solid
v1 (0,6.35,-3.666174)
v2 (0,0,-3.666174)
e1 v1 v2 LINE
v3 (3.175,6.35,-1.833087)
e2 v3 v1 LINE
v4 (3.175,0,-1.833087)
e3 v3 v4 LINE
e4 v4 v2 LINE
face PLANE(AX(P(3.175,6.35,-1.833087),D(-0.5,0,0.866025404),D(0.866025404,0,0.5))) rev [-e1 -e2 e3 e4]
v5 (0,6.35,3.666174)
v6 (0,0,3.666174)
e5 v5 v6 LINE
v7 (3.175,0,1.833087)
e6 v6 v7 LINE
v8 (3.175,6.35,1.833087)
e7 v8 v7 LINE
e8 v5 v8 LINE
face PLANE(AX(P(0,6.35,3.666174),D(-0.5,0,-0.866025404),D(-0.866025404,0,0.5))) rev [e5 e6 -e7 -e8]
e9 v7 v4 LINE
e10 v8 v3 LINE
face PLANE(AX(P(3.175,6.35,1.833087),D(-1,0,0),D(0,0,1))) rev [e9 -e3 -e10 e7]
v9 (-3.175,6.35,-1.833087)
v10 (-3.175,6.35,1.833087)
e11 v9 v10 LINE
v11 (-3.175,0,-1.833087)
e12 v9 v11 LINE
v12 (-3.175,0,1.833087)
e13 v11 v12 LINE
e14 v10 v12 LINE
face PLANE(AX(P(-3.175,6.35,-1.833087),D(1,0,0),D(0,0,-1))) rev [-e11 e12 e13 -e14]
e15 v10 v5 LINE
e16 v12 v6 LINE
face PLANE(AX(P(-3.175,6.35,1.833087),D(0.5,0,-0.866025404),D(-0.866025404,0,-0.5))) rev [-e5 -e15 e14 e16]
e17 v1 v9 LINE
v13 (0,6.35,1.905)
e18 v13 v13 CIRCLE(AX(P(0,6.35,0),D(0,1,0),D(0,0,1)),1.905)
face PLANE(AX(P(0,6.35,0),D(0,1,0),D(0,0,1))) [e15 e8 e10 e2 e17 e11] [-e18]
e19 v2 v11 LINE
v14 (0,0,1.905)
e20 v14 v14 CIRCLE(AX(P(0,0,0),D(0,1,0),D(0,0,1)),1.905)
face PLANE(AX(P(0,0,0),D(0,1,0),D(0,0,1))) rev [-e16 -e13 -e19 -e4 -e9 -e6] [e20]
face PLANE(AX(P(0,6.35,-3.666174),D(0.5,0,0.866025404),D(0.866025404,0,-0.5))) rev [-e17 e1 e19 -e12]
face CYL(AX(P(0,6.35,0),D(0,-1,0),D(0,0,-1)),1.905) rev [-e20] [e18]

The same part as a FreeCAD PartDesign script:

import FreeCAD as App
import Part
import Sketcher
Q = App.Units.Quantity


def add_polygon(sketch, points):
    """Adds a closed chain of lines whose ends are joined by coincident constraints."""
    first, n = sketch.GeometryCount, len(points)
    for a, b in zip(points, points[1:] + points[:1]):
        sketch.addGeometry(Part.LineSegment(App.Vector(*a, 0), App.Vector(*b, 0)), False)
    for i in range(n):
        sketch.addConstraint(Sketcher.Constraint("Coincident", first + i, 2, first + (i + 1) % n, 1))

doc = App.newDocument("Part")
params = doc.addObject("Spreadsheet::Sheet", "Params")
for row, (alias, value) in enumerate([
    ("sketch1_diameter", "0.15 in"),
    ("pad1_length", "0.25 in"),
], start=1):
    params.set(f"A{row}", alias)
    params.set(f"B{row}", "=" + value)
    params.setAlias(f"B{row}", alias)

body = doc.addObject("PartDesign::Body", "Body")

sketch1 = doc.addObject("Sketcher::SketchObject", "Sketch")
body.addObject(sketch1)
sketch1.AttachmentSupport = (doc.XZ_Plane, [""])
sketch1.MapMode = "FlatFace"
add_polygon(sketch1, [(0, 3.7), (3.2, 1.8), (3.2, -1.8), (0, -3.7), (-3.2, -1.8), (-3.2, 1.8)])
sketch1.addGeometry(Part.Circle(App.Vector(0, 0, 0), App.Vector(0, 0, 1), 1.9), False)
sketch1.addConstraint([
    Sketcher.Constraint("Vertical", 1),
    Sketcher.Constraint("Vertical", 4),
    Sketcher.Constraint("Coincident", 6, 3, -1, 1),
    Sketcher.Constraint("Symmetric", 0, 2, 3, 2, -1, 1),
    Sketcher.Constraint("Symmetric", 2, 2, 5, 2, -1, 1),
    Sketcher.Constraint("PointOnObject", 2, 2, -2),
    Sketcher.Constraint("Parallel", 2, 5),
    Sketcher.Constraint("Horizontal", 1, 2, 3, 2),
    Sketcher.Constraint("Diameter", 6, Q("0.15 in")),
    Sketcher.Constraint("Angle", 0, Q("-30 deg")),
    Sketcher.Constraint("DistanceX", 3, 2, 1, 2, Q("0.25 in")),
    Sketcher.Constraint("DistanceY", 1, 2, 1, 1, Q("3.666174 mm")),
])
sketch1.setExpression("Constraints[14]", "Params.sketch1_diameter")
pad1 = doc.addObject("PartDesign::Pad", "Pad")
body.addObject(pad1)
pad1.Profile = sketch1
pad1.setExpression("Length", "Params.pad1_length")
pad1.Reversed = True

doc.recompute()
